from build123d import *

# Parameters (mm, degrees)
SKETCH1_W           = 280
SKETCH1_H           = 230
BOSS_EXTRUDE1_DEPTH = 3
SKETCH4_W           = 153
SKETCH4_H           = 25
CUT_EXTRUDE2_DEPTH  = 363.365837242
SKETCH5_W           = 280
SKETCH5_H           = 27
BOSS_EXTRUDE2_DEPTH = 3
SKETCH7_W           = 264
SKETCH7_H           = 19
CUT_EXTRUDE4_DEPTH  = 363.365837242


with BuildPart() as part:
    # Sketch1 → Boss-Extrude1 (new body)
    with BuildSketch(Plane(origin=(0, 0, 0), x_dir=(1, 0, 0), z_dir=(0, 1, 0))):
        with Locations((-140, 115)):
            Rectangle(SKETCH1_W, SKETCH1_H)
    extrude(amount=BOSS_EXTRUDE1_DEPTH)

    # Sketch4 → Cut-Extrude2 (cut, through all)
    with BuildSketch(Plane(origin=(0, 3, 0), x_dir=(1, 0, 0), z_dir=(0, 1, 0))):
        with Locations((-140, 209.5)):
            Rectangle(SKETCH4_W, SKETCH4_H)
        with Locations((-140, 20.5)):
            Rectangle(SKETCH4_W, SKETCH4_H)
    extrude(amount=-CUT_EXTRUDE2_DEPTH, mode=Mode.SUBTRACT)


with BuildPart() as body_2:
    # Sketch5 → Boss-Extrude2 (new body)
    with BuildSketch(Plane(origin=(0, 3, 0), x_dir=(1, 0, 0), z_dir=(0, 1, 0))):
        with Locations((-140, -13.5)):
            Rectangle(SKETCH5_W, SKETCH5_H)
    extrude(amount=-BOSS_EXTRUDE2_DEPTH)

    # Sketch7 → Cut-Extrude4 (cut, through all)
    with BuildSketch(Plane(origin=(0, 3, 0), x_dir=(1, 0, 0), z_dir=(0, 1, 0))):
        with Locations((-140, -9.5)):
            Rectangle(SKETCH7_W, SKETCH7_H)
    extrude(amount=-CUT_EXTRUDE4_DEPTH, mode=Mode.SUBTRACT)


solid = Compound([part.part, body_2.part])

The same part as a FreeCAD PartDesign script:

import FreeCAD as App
import Part
import Sketcher
Q = App.Units.Quantity

doc = App.newDocument("Part")
body = doc.addObject("PartDesign::Body", "Body")

sketch1 = body.newObject("Sketcher::SketchObject", "Sketch")
sketch1.AttachmentSupport = (doc.getObject("XZ_Plane"), [""])
sketch1.MapMode = "FlatFace"
sketch1.addGeometry(Part.LineSegment(App.Vector(-280, -230, 0), App.Vector(-280, 0, 0)), False)
sketch1.addGeometry(Part.LineSegment(App.Vector(-280, 0, 0), App.Vector(0, 0, 0)), False)
sketch1.addGeometry(Part.LineSegment(App.Vector(0, 0, 0), App.Vector(0, -230, 0)), False)
sketch1.addGeometry(Part.LineSegment(App.Vector(0, -230, 0), App.Vector(-280, -230, 0)), False)
sketch1.addConstraint(Sketcher.Constraint("Coincident", 0, 2, 1, 1))
sketch1.addConstraint(Sketcher.Constraint("Coincident", 1, 2, 2, 1))
sketch1.addConstraint(Sketcher.Constraint("Coincident", 2, 2, 3, 1))
sketch1.addConstraint(Sketcher.Constraint("Coincident", 3, 2, 0, 1))
sketch1.addConstraint(Sketcher.Constraint("Vertical", 0))
sketch1.addConstraint(Sketcher.Constraint("Horizontal", 1))
sketch1.addConstraint(Sketcher.Constraint("Vertical", 2))
sketch1.addConstraint(Sketcher.Constraint("Horizontal", 3))
sketch1.addConstraint(Sketcher.Constraint("Coincident", 1, 2, -1, 1))
sketch1.addConstraint(Sketcher.Constraint("DistanceX", 1, 1, 1, 2, Q("280 mm")))
sketch1.addConstraint(Sketcher.Constraint("DistanceY", 0, 1, 0, 2, Q("230 mm")))
pad1 = body.newObject("PartDesign::Pad", "Pad")
pad1.Profile = sketch1
pad1.Length = 3
pad1.Reversed = True

sketch2 = body.newObject("Sketcher::SketchObject", "Sketch001")
sketch2.AttachmentSupport = (doc.getObject("XZ_Plane"), [""])
sketch2.MapMode = "FlatFace"
sketch2.AttachmentOffset = App.Placement(App.Vector(0, 0, -3), App.Rotation())
sketch2.addGeometry(Part.LineSegment(App.Vector(-216, -222, 0), App.Vector(-216, -197, 0)), False)
sketch2.addGeometry(Part.LineSegment(App.Vector(-216, -197, 0), App.Vector(-64, -197, 0)), False)
sketch2.addGeometry(Part.LineSegment(App.Vector(-64, -197, 0), App.Vector(-64, -222, 0)), False)
sketch2.addGeometry(Part.LineSegment(App.Vector(-64, -222, 0), App.Vector(-216, -222, 0)), False)
sketch2.addGeometry(Part.LineSegment(App.Vector(-216, -33, 0), App.Vector(-216, -8, 0)), False)
sketch2.addGeometry(Part.LineSegment(App.Vector(-216, -8, 0), App.Vector(-64, -8, 0)), False)
sketch2.addGeometry(Part.LineSegment(App.Vector(-64, -8, 0), App.Vector(-64, -33, 0)), False)
sketch2.addGeometry(Part.LineSegment(App.Vector(-64, -33, 0), App.Vector(-216, -33, 0)), False)
sketch2.addConstraint(Sketcher.Constraint("Coincident", 0, 2, 1, 1))
sketch2.addConstraint(Sketcher.Constraint("Coincident", 1, 2, 2, 1))
sketch2.addConstraint(Sketcher.Constraint("Coincident", 2, 2, 3, 1))
sketch2.addConstraint(Sketcher.Constraint("Coincident", 3, 2, 0, 1))
sketch2.addConstraint(Sketcher.Constraint("Coincident", 4, 2, 5, 1))
sketch2.addConstraint(Sketcher.Constraint("Coincident", 5, 2, 6, 1))
sketch2.addConstraint(Sketcher.Constraint("Coincident", 6, 2, 7, 1))
sketch2.addConstraint(Sketcher.Constraint("Coincident", 7, 2, 4, 1))
sketch2.addConstraint(Sketcher.Constraint("Vertical", 0))
sketch2.addConstraint(Sketcher.Constraint("Horizontal", 1))
sketch2.addConstraint(Sketcher.Constraint("Vertical", 2))
sketch2.addConstraint(Sketcher.Constraint("Horizontal", 3))
sketch2.addConstraint(Sketcher.Constraint("Vertical", 4))
sketch2.addConstraint(Sketcher.Constraint("Horizontal", 5))
sketch2.addConstraint(Sketcher.Constraint("Vertical", 6))
sketch2.addConstraint(Sketcher.Constraint("Horizontal", 7))
sketch2.addConstraint(Sketcher.Constraint("Vertical", 3, 2, 4, 2))
sketch2.addConstraint(Sketcher.Constraint("Vertical", 2, 2, 5, 2))
sketch2.addConstraint(Sketcher.Constraint("Equal", 2, 4))
sketch2.addConstraint(Sketcher.Constraint("DistanceX", 1, 1, 1, 2, Q("153 mm")))
sketch2.addConstraint(Sketcher.Constraint("DistanceY", 0, 1, 0, 2, Q("25 mm")))
sketch2.addConstraint(Sketcher.Constraint("DistanceY", 0, 2, -1, 1, Q("197 mm")))
sketch2.addConstraint(Sketcher.Constraint("DistanceY", 4, 2, -1, 1, Q("8 mm")))
sketch2.addConstraint(Sketcher.Constraint("DistanceX", 0, 2, -1, 1, Q("216.5 mm")))
pocket1 = body.newObject("PartDesign::Pocket", "Pocket")
pocket1.Profile = sketch2
pocket1.Type = "ThroughAll"
pocket1.Reversed = True
body2 = doc.addObject("PartDesign::Body", "Body001")

sketch3 = body2.newObject("Sketcher::SketchObject", "Sketch002")
sketch3.AttachmentSupport = (doc.getObject("XZ_Plane001"), [""])
sketch3.MapMode = "FlatFace"
sketch3.AttachmentOffset = App.Placement(App.Vector(0, 0, -3), App.Rotation())
sketch3.addGeometry(Part.LineSegment(App.Vector(-280, 0, 0), App.Vector(-280, 27, 0)), False)
sketch3.addGeometry(Part.LineSegment(App.Vector(-280, 27, 0), App.Vector(0, 27, 0)), False)
sketch3.addGeometry(Part.LineSegment(App.Vector(0, 27, 0), App.Vector(0, 0, 0)), False)
sketch3.addGeometry(Part.LineSegment(App.Vector(0, 0, 0), App.Vector(-280, 0, 0)), False)
sketch3.addConstraint(Sketcher.Constraint("Coincident", 0, 2, 1, 1))
sketch3.addConstraint(Sketcher.Constraint("Coincident", 1, 2, 2, 1))
sketch3.addConstraint(Sketcher.Constraint("Coincident", 2, 2, 3, 1))
sketch3.addConstraint(Sketcher.Constraint("Coincident", 3, 2, 0, 1))
sketch3.addConstraint(Sketcher.Constraint("Vertical", 0))
sketch3.addConstraint(Sketcher.Constraint("Horizontal", 1))
sketch3.addConstraint(Sketcher.Constraint("Vertical", 2))
sketch3.addConstraint(Sketcher.Constraint("Horizontal", 3))
sketch3.addConstraint(Sketcher.Constraint("Coincident", 2, 2, -1, 1))
sketch3.addConstraint(Sketcher.Constraint("DistanceX", 1, 1, 1, 2, Q("280 mm")))
sketch3.addConstraint(Sketcher.Constraint("DistanceY", 0, 1, 0, 2, Q("27 mm")))
pad2 = body2.newObject("PartDesign::Pad", "Pad001")
pad2.Profile = sketch3
pad2.Length = 3

sketch4 = body2.newObject("Sketcher::SketchObject", "Sketch003")
sketch4.AttachmentSupport = (doc.getObject("XZ_Plane001"), [""])
sketch4.MapMode = "FlatFace"
sketch4.AttachmentOffset = App.Placement(App.Vector(0, 0, -3), App.Rotation())
sketch4.addGeometry(Part.LineSegment(App.Vector(-272, 0, 0), App.Vector(-272, 19, 0)), False)
sketch4.addGeometry(Part.LineSegment(App.Vector(-272, 19, 0), App.Vector(-8, 19, 0)), False)
sketch4.addGeometry(Part.LineSegment(App.Vector(-8, 19, 0), App.Vector(-8, 0, 0)), False)
sketch4.addGeometry(Part.LineSegment(App.Vector(-8, 0, 0), App.Vector(-272, 0, 0)), False)
sketch4.addConstraint(Sketcher.Constraint("Coincident", 0, 2, 1, 1))
sketch4.addConstraint(Sketcher.Constraint("Coincident", 1, 2, 2, 1))
sketch4.addConstraint(Sketcher.Constraint("Coincident", 2, 2, 3, 1))
sketch4.addConstraint(Sketcher.Constraint("Coincident", 3, 2, 0, 1))
sketch4.addConstraint(Sketcher.Constraint("Vertical", 0))
sketch4.addConstraint(Sketcher.Constraint("Horizontal", 1))
sketch4.addConstraint(Sketcher.Constraint("Vertical", 2))
sketch4.addConstraint(Sketcher.Constraint("Horizontal", 3))
sketch4.addConstraint(Sketcher.Constraint("PointOnObject", 2, 2, -1))
sketch4.addConstraint(Sketcher.Constraint("DistanceX", 1, 1, 1, 2, Q("264 mm")))
sketch4.addConstraint(Sketcher.Constraint("DistanceY", 0, 1, 0, 2, Q("19 mm")))
sketch4.addConstraint(Sketcher.Constraint("DistanceX", 0, 2, -1, 1, Q("272 mm")))
pocket2 = body2.newObject("PartDesign::Pocket", "Pocket001")
pocket2.Profile = sketch4
pocket2.Type = "ThroughAll"
pocket2.Reversed = True

doc.recompute()
